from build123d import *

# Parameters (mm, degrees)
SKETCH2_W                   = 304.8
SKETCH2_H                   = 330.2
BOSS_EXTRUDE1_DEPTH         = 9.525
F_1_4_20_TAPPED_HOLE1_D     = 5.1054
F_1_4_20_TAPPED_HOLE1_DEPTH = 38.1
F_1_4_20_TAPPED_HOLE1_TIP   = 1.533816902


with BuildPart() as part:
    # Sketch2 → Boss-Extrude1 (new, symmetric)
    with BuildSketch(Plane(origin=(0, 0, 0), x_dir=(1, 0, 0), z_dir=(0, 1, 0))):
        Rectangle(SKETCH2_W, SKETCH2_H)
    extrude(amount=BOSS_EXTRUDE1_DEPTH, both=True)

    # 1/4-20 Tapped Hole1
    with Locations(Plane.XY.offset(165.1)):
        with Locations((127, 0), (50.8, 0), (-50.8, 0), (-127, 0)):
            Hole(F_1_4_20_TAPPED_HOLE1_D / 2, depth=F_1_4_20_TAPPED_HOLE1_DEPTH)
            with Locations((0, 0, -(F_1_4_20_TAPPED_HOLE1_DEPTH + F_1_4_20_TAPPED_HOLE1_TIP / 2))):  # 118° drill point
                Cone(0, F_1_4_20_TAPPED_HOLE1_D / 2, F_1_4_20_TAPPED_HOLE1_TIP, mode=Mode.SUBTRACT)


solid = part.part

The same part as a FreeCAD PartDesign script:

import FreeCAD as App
import Part
import Sketcher

V = App.Vector
Q = App.Units.Quantity


def add_polygon(sketch, points):
    """Adds a closed chain of lines whose ends are joined by coincident constraints."""
    first, n = sketch.GeometryCount, len(points)
    for a, b in zip(points, points[1:] + points[:1]):
        sketch.addGeometry(Part.LineSegment(App.Vector(*a, 0), App.Vector(*b, 0)), False)
    for i in range(n):
        sketch.addConstraint(Sketcher.Constraint("Coincident", first + i, 2, first + (i + 1) % n, 1))

doc = App.newDocument("Part")
body = doc.addObject("PartDesign::Body", "Body")

# Sketch on XZ plane
sketch1 = body.newObject("Sketcher::SketchObject", "Sketch")
sketch1.AttachmentSupport = (doc.getObject("XZ_Plane"), [""])
sketch1.MapMode = "FlatFace"
add_polygon(sketch1, [(-152, -165), (-152, 165), (152, 165), (152, -165)])  # lines 0-3
sketch1.addConstraint([
    Sketcher.Constraint("Vertical", 0),
    Sketcher.Constraint("Horizontal", 1),
    Sketcher.Constraint("Vertical", 2),
    Sketcher.Constraint("Horizontal", 3),
    Sketcher.Constraint("Symmetric", 0, 2, 2, 2, -1, 1),
    Sketcher.Constraint("DistanceX", 1, 1, 1, 2, Q("12 in")),
    Sketcher.Constraint("DistanceY", 0, 1, 0, 2, Q("13 in")),
])
pad1 = body.newObject("PartDesign::Pad", "Pad")
pad1.Profile = sketch1
pad1.Length = Q("0.75 in")
pad1.Midplane = True

# Sketch on XY plane
sketch2 = body.newObject("Sketcher::SketchObject", "Sketch001")
sketch2.AttachmentSupport = (doc.getObject("XY_Plane"), [""])
sketch2.MapMode = "FlatFace"
sketch2.AttachmentOffset = App.Placement(V(0, 0, 6.5 * 25.4), App.Rotation())
sketch2.addGeometry([
    Part.Circle(V(127, 0, 0), V(0, 0, 1), 2.6),
    Part.Circle(V(50.8, 0, 0), V(0, 0, 1), 2.6),
    Part.Circle(V(-50.8, 0, 0), V(0, 0, 1), 2.6),
    Part.Circle(V(-127, 0, 0), V(0, 0, 1), 2.6),
], False)
sketch2.addConstraint([
    Sketcher.Constraint("Equal", 0, 1),
    Sketcher.Constraint("Equal", 1, 2),
    Sketcher.Constraint("Equal", 2, 3),
    Sketcher.Constraint("Symmetric", 1, 3, 2, 3, -1, 1),
    Sketcher.Constraint("Symmetric", 0, 3, 3, 3, -1, 1),
    Sketcher.Constraint("PointOnObject", 0, 3, -1),
    Sketcher.Constraint("PointOnObject", 1, 3, -1),
    Sketcher.Constraint("Diameter", 0, Q("0.201 in")),
    Sketcher.Constraint("DistanceX", -1, 1, 0, 3, Q("5 in")),
    Sketcher.Constraint("DistanceX", -1, 1, 1, 3, Q("2 in")),
])
doc.recompute()
hole = body.newObject("PartDesign::Hole", "Hole")
hole.Profile = sketch2
hole.ThreadType = "None"
hole.Diameter = Q("0.201 in")
hole.DepthType = "Dimension"
hole.Depth = Q("1.5 in")
hole.DrillPoint = "Angled"
hole.DrillPointAngle = 118

doc.recompute()
